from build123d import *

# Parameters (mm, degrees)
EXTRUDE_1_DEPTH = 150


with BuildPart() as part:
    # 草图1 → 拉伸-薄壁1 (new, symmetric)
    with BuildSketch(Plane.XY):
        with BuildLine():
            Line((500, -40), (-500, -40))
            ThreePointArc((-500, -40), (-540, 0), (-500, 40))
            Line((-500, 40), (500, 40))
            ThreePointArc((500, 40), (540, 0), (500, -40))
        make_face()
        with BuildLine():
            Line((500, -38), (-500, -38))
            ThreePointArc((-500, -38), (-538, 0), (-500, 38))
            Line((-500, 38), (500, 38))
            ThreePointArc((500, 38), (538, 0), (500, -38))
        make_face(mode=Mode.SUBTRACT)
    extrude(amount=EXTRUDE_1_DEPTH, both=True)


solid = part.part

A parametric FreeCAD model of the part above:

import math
import FreeCAD as App
import Part
import Sketcher
Q = App.Units.Quantity

doc = App.newDocument("Part")
body = doc.addObject("PartDesign::Body", "Body")

# Sketch on XY plane
sketch1 = body.newObject("Sketcher::SketchObject", "Sketch")
sketch1.AttachmentSupport = (doc.getObject("XY_Plane"), [""])
sketch1.MapMode = "FlatFace"
sketch1.addGeometry(Part.LineSegment(App.Vector(-500, -40, 0), App.Vector(500, -40, 0)), False)
sketch1.addGeometry(Part.ArcOfCircle(Part.Circle(App.Vector(500, 0, 0), App.Vector(0, 0, 1), 40), math.radians(-90), math.radians(90)), False)
sketch1.addGeometry(Part.LineSegment(App.Vector(500, 40, 0), App.Vector(-500, 40, 0)), False)
sketch1.addGeometry(Part.ArcOfCircle(Part.Circle(App.Vector(-500, 0, 0), App.Vector(0, 0, 1), 40), math.radians(90), math.radians(270)), False)
sketch1.addGeometry(Part.LineSegment(App.Vector(500, -38, 0), App.Vector(-500, -38, 0)), False)
sketch1.addGeometry(Part.ArcOfCircle(Part.Circle(App.Vector(-500, 0, 0), App.Vector(0, 0, 1), 38), math.radians(90), math.radians(270)), False)
sketch1.addGeometry(Part.LineSegment(App.Vector(-500, 38, 0), App.Vector(500, 38, 0)), False)
sketch1.addGeometry(Part.ArcOfCircle(Part.Circle(App.Vector(500, 0, 0), App.Vector(0, 0, 1), 38), math.radians(-90), math.radians(90)), False)
sketch1.addConstraint(Sketcher.Constraint("Tangent", 0, 2, 1, 1))
sketch1.addConstraint(Sketcher.Constraint("Tangent", 1, 2, 2, 1))
sketch1.addConstraint(Sketcher.Constraint("Tangent", 2, 2, 3, 1))
sketch1.addConstraint(Sketcher.Constraint("Tangent", 3, 2, 0, 1))
sketch1.addConstraint(Sketcher.Constraint("Tangent", 4, 2, 5, 2))
sketch1.addConstraint(Sketcher.Constraint("Tangent", 5, 1, 6, 1))
sketch1.addConstraint(Sketcher.Constraint("Tangent", 6, 2, 7, 2))
sketch1.addConstraint(Sketcher.Constraint("Tangent", 7, 1, 4, 1))
sketch1.addConstraint(Sketcher.Constraint("Horizontal", 0))
sketch1.addConstraint(Sketcher.Constraint("Horizontal", 2))
sketch1.addConstraint(Sketcher.Constraint("Horizontal", 4))
sketch1.addConstraint(Sketcher.Constraint("Horizontal", 6))
sketch1.addConstraint(Sketcher.Constraint("Coincident", 5, 3, 3, 3))
sketch1.addConstraint(Sketcher.Constraint("Symmetric", 1, 3, 3, 3, -1, 1))
sketch1.addConstraint(Sketcher.Constraint("Vertical", 7, 3, 0, 2))
sketch1.addConstraint(Sketcher.Constraint("Radius", 1, Q("40 mm")))
sketch1.addConstraint(Sketcher.Constraint("Radius", 5, Q("38 mm")))
sketch1.addConstraint(Sketcher.Constraint("DistanceX", 0, 1, 0, 2, Q("1000 mm")))
pad1 = body.newObject("PartDesign::Pad", "Pad")
pad1.Profile = sketch1
pad1.Length = 300
pad1.Midplane = True

doc.recompute()
